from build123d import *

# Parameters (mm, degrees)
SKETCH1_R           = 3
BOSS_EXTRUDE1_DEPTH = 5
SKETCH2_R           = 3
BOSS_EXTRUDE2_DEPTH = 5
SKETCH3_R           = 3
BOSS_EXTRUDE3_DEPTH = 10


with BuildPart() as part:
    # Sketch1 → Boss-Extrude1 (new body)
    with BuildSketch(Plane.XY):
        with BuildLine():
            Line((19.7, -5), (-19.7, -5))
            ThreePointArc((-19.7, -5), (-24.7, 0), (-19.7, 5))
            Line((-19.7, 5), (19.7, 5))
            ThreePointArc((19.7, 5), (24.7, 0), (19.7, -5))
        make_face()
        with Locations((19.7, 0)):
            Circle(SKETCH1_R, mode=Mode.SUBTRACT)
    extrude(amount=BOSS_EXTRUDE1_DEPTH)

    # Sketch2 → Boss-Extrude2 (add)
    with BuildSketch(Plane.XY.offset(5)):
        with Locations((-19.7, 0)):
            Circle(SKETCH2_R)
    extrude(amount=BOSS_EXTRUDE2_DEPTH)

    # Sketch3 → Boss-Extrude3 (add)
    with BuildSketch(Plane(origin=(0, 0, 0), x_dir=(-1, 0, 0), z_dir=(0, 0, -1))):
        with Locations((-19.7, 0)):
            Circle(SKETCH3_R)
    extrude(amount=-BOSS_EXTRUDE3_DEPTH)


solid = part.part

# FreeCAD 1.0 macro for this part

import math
import FreeCAD as App
import Part
import Sketcher

doc = App.newDocument("Part")
body = doc.addObject("PartDesign::Body", "Body")

# Sketch on XY plane
sketch1 = doc.addObject("Sketcher::SketchObject", "Sketch")
body.addObject(sketch1)
sketch1.AttachmentSupport = (doc.XY_Plane, [""])
sketch1.MapMode = "FlatFace"
sketch1.addGeometry([
    Part.LineSegment(App.Vector(-19.7, -5, 0), App.Vector(19.7, -5, 0)),  # 0
    Part.ArcOfCircle(Part.Circle(App.Vector(19.7, 0, 0), App.Vector(0, 0, 1), 5), math.radians(-90), math.radians(90)),  # 1
    Part.LineSegment(App.Vector(19.7, 5, 0), App.Vector(-19.7, 5, 0)),  # 2
    Part.ArcOfCircle(Part.Circle(App.Vector(-19.7, 0, 0), App.Vector(0, 0, 1), 5), math.radians(90), math.radians(270)),  # 3
    Part.Circle(App.Vector(19.7, 0, 0), App.Vector(0, 0, 1), 3),  # 4
], False)
sketch1.addConstraint([
    Sketcher.Constraint("Tangent", 0, 2, 1, 1),
    Sketcher.Constraint("Tangent", 1, 2, 2, 1),
    Sketcher.Constraint("Tangent", 2, 2, 3, 1),
    Sketcher.Constraint("Tangent", 3, 2, 0, 1),
    Sketcher.Constraint("Horizontal", 0),
    Sketcher.Constraint("Horizontal", 2),
    Sketcher.Constraint("Coincident", 4, 3, 1, 3),
    Sketcher.Constraint("Symmetric", 1, 3, 3, 3, -1, 1),
    Sketcher.Constraint("Diameter", 4, 6.0),
    Sketcher.Constraint("Radius", 1, 5.0),
    Sketcher.Constraint("DistanceX", 0, 1, 0, 2, 39.4),
])
pad1 = doc.addObject("PartDesign::Pad", "Pad")
body.addObject(pad1)
pad1.Profile = sketch1
pad1.Length = 5

# Sketch on XY plane
sketch2 = doc.addObject("Sketcher::SketchObject", "Sketch001")
body.addObject(sketch2)
sketch2.AttachmentSupport = (doc.XY_Plane, [""])
sketch2.MapMode = "FlatFace"
sketch2.AttachmentOffset = App.Placement(App.Vector(0, 0, 5), App.Rotation())
sketch2.addGeometry(Part.Circle(App.Vector(-19.7, 0, 0), App.Vector(0, 0, 1), 3), False)
sketch2.addConstraint([
    Sketcher.Constraint("PointOnObject", 0, 3, -1),
    Sketcher.Constraint("Diameter", 0, 6.0),
    Sketcher.Constraint("DistanceX", 0, 3, -1, 1, 19.7),
])
pad2 = doc.addObject("PartDesign::Pad", "Pad001")
body.addObject(pad2)
pad2.Profile = sketch2
pad2.Length = 5

# Sketch on XY plane
sketch3 = doc.addObject("Sketcher::SketchObject", "Sketch002")
body.addObject(sketch3)
sketch3.AttachmentSupport = (doc.XY_Plane, [""])
sketch3.MapMode = "FlatFace"
sketch3.addGeometry(Part.Circle(App.Vector(19.7, 0, 0), App.Vector(0, 0, 1), 3), False)
sketch3.addConstraint([
    Sketcher.Constraint("PointOnObject", 0, 3, -1),
    Sketcher.Constraint("Diameter", 0, 6.0),
    Sketcher.Constraint("DistanceX", -1, 1, 0, 3, 19.7),
])
pad3 = doc.addObject("PartDesign::Pad", "Pad002")
body.addObject(pad3)
pad3.Profile = sketch3
pad3.Length = 10

doc.recompute()
